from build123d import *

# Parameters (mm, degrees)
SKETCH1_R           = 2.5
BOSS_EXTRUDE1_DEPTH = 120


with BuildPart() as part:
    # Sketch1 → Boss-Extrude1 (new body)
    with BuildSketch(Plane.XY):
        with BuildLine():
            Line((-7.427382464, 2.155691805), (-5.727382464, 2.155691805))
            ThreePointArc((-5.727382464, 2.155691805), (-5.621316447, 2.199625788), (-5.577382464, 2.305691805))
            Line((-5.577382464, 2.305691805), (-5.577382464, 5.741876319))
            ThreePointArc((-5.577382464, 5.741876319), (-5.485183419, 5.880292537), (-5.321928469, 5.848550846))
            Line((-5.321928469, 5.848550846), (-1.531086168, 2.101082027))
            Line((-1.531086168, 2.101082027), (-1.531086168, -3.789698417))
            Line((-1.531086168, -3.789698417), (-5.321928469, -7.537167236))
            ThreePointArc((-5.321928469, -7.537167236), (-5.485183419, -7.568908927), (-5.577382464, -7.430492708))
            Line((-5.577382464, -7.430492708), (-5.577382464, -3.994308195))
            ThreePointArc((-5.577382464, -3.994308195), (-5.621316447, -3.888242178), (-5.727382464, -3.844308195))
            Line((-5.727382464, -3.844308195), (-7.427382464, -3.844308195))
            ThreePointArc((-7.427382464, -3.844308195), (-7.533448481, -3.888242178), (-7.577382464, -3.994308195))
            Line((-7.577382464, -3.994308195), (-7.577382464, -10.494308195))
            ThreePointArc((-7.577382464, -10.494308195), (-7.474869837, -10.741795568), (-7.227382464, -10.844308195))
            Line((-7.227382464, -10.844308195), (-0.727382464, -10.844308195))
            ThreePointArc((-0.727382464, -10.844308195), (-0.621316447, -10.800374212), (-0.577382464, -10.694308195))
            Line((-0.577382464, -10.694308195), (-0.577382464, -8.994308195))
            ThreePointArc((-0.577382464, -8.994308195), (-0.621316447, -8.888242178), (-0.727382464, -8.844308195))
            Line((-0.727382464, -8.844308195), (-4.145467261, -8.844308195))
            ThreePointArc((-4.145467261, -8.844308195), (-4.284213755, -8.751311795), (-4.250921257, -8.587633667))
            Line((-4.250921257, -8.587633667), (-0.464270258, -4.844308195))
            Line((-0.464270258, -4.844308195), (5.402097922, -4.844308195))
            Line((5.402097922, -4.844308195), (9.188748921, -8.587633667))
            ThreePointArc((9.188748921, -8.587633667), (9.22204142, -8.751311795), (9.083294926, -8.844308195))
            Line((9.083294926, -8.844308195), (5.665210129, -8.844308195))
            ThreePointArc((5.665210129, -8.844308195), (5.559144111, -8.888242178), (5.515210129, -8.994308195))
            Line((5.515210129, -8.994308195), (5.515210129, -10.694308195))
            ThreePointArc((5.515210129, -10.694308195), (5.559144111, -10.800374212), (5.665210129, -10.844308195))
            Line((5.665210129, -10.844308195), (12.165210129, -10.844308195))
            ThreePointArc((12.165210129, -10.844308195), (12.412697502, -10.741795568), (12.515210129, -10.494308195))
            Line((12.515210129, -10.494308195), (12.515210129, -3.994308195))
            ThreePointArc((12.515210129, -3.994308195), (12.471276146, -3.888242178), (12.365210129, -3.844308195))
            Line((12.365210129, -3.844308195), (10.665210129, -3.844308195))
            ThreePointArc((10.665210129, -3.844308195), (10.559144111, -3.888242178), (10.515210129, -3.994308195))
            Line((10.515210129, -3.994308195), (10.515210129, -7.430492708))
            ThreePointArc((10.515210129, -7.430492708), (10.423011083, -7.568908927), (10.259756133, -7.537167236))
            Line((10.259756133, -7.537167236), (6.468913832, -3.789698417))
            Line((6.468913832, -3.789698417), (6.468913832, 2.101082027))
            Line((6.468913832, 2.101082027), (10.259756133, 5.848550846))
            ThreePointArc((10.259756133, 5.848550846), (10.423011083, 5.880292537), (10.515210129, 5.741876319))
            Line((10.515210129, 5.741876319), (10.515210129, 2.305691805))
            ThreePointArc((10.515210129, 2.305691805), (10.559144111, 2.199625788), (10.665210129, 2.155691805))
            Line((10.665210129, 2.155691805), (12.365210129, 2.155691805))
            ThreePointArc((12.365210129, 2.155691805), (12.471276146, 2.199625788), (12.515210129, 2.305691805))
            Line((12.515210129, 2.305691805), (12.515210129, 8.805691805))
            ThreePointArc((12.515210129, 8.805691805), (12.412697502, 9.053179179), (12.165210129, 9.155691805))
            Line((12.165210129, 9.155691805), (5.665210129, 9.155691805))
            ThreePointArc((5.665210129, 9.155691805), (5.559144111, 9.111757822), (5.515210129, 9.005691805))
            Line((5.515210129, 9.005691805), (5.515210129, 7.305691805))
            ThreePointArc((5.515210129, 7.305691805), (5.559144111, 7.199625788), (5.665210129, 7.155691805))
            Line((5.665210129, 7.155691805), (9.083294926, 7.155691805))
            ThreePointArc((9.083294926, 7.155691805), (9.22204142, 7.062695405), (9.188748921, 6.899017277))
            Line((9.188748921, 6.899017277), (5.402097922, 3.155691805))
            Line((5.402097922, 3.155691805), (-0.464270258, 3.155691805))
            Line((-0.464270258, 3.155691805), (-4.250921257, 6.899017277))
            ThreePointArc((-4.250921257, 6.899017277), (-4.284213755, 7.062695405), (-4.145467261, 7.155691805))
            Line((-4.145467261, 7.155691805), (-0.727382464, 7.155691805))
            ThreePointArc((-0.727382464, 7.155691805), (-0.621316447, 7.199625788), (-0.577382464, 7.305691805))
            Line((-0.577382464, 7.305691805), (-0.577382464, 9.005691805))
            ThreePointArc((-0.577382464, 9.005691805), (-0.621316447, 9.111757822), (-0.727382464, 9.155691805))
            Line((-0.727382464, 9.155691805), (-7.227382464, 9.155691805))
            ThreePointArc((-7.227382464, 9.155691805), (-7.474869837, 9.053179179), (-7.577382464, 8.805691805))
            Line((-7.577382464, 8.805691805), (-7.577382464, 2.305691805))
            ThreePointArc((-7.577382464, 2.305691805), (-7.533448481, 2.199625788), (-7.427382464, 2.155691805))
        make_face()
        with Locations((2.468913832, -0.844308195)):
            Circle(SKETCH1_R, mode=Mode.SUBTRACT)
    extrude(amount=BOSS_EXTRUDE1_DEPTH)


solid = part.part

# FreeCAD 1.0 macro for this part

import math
import FreeCAD as App
import Part
import Sketcher
Q = App.Units.Quantity

doc = App.newDocument("Part")
params = doc.addObject("Spreadsheet::Sheet", "Params")
for row, (alias, value) in enumerate([
    ("sketch1_diameter", "5 mm"),
    ("sketch1_radius", "0.15 mm"),
    ("sketch1_radius2", "0.35 mm"),
    ("sketch1_width", "1.7 mm"),
    ("sketch1_width2", "6.5 mm"),
    ("pad1_length", "120 mm"),
], start=1):
    params.set(f"A{row}", alias)
    params.set(f"B{row}", "=" + value)
    params.setAlias(f"B{row}", alias)

body = doc.addObject("PartDesign::Body", "Body")

sketch1 = body.newObject("Sketcher::SketchObject", "Sketch")
sketch1.AttachmentSupport = (doc.getObject("XY_Plane"), [""])
sketch1.MapMode = "FlatFace"
sketch1.addGeometry([
    Part.LineSegment(App.Vector(-7.43, 2.16, 0), App.Vector(-5.73, 2.16, 0)),
    Part.ArcOfCircle(Part.Circle(App.Vector(-5.73, 2.31, 0), App.Vector(0, 0, 1), 0.15), math.radians(-90), math.radians(0)),
    Part.LineSegment(App.Vector(-5.58, 2.31, 0), App.Vector(-5.58, 5.74, 0)),
    Part.ArcOfCircle(Part.Circle(App.Vector(-5.43, 5.74, 0), App.Vector(0, 0, 1), 0.15), math.radians(45), math.radians(180)),
    Part.LineSegment(App.Vector(-5.32, 5.85, 0), App.Vector(-1.53, 2.1, 0)),
    Part.LineSegment(App.Vector(-1.53, 2.1, 0), App.Vector(-1.53, -3.79, 0)),
    Part.LineSegment(App.Vector(-1.53, -3.79, 0), App.Vector(-5.32, -7.54, 0)),
    Part.ArcOfCircle(Part.Circle(App.Vector(-5.43, -7.43, 0), App.Vector(0, 0, 1), 0.15), math.radians(180), math.radians(315)),
    Part.LineSegment(App.Vector(-5.58, -7.43, 0), App.Vector(-5.58, -3.99, 0)),
    Part.ArcOfCircle(Part.Circle(App.Vector(-5.73, -3.99, 0), App.Vector(0, 0, 1), 0.15), math.radians(0), math.radians(90)),
    Part.LineSegment(App.Vector(-5.73, -3.84, 0), App.Vector(-7.43, -3.84, 0)),
    Part.ArcOfCircle(Part.Circle(App.Vector(-7.43, -3.99, 0), App.Vector(0, 0, 1), 0.15), math.radians(90), math.radians(180)),
    Part.LineSegment(App.Vector(-7.58, -3.99, 0), App.Vector(-7.58, -10.49, 0)),
    Part.ArcOfCircle(Part.Circle(App.Vector(-7.23, -10.49, 0), App.Vector(0, 0, 1), 0.35), math.radians(-180), math.radians(-90)),
    Part.LineSegment(App.Vector(-7.23, -10.84, 0), App.Vector(-0.73, -10.84, 0)),
    Part.ArcOfCircle(Part.Circle(App.Vector(-0.73, -10.69, 0), App.Vector(0, 0, 1), 0.15), math.radians(-90), math.radians(0)),
    Part.LineSegment(App.Vector(-0.58, -10.69, 0), App.Vector(-0.58, -8.99, 0)),
    Part.ArcOfCircle(Part.Circle(App.Vector(-0.73, -8.99, 0), App.Vector(0, 0, 1), 0.15), math.radians(0), math.radians(90)),
    Part.LineSegment(App.Vector(-0.73, -8.84, 0), App.Vector(-4.15, -8.84, 0)),
    Part.ArcOfCircle(Part.Circle(App.Vector(-4.15, -8.69, 0), App.Vector(0, 0, 1), 0.15), math.radians(135), math.radians(270)),
    Part.LineSegment(App.Vector(-4.25, -8.59, 0), App.Vector(-0.46, -4.84, 0)),
    Part.LineSegment(App.Vector(-0.46, -4.84, 0), App.Vector(5.4, -4.84, 0)),
    Part.LineSegment(App.Vector(5.4, -4.84, 0), App.Vector(9.19, -8.59, 0)),
    Part.ArcOfCircle(Part.Circle(App.Vector(9.08, -8.69, 0), App.Vector(0, 0, 1), 0.15), math.radians(-90), math.radians(45)),
    Part.LineSegment(App.Vector(9.08, -8.84, 0), App.Vector(5.67, -8.84, 0)),
    Part.ArcOfCircle(Part.Circle(App.Vector(5.67, -8.99, 0), App.Vector(0, 0, 1), 0.15), math.radians(90), math.radians(180)),
    Part.LineSegment(App.Vector(5.52, -8.99, 0), App.Vector(5.52, -10.69, 0)),
    Part.ArcOfCircle(Part.Circle(App.Vector(5.67, -10.69, 0), App.Vector(0, 0, 1), 0.15), math.radians(180), math.radians(270)),
    Part.LineSegment(App.Vector(5.67, -10.84, 0), App.Vector(12.17, -10.84, 0)),
    Part.ArcOfCircle(Part.Circle(App.Vector(12.17, -10.49, 0), App.Vector(0, 0, 1), 0.35), math.radians(-90), math.radians(0)),
    Part.LineSegment(App.Vector(12.52, -10.49, 0), App.Vector(12.52, -3.99, 0)),
    Part.ArcOfCircle(Part.Circle(App.Vector(12.37, -3.99, 0), App.Vector(0, 0, 1), 0.15), math.radians(0), math.radians(90)),
    Part.LineSegment(App.Vector(12.37, -3.84, 0), App.Vector(10.67, -3.84, 0)),
    Part.ArcOfCircle(Part.Circle(App.Vector(10.67, -3.99, 0), App.Vector(0, 0, 1), 0.15), math.radians(90), math.radians(180)),
    Part.LineSegment(App.Vector(10.52, -3.99, 0), App.Vector(10.52, -7.43, 0)),
    Part.ArcOfCircle(Part.Circle(App.Vector(10.37, -7.43, 0), App.Vector(0, 0, 1), 0.15), math.radians(-135), math.radians(0)),
    Part.LineSegment(App.Vector(10.26, -7.54, 0), App.Vector(6.47, -3.79, 0)),
    Part.LineSegment(App.Vector(6.47, -3.79, 0), App.Vector(6.47, 2.1, 0)),
    Part.LineSegment(App.Vector(6.47, 2.1, 0), App.Vector(10.26, 5.85, 0)),
    Part.ArcOfCircle(Part.Circle(App.Vector(10.37, 5.74, 0), App.Vector(0, 0, 1), 0.15), math.radians(0), math.radians(135)),
    Part.LineSegment(App.Vector(10.52, 5.74, 0), App.Vector(10.52, 2.31, 0)),
    Part.ArcOfCircle(Part.Circle(App.Vector(10.67, 2.31, 0), App.Vector(0, 0, 1), 0.15), math.radians(180), math.radians(270)),
    Part.LineSegment(App.Vector(10.67, 2.16, 0), App.Vector(12.37, 2.16, 0)),
    Part.ArcOfCircle(Part.Circle(App.Vector(12.37, 2.31, 0), App.Vector(0, 0, 1), 0.15), math.radians(-90), math.radians(0)),
    Part.LineSegment(App.Vector(12.52, 2.31, 0), App.Vector(12.52, 8.81, 0)),
    Part.ArcOfCircle(Part.Circle(App.Vector(12.17, 8.81, 0), App.Vector(0, 0, 1), 0.35), math.radians(0), math.radians(90)),
    Part.LineSegment(App.Vector(12.17, 9.16, 0), App.Vector(5.67, 9.16, 0)),
    Part.ArcOfCircle(Part.Circle(App.Vector(5.67, 9.01, 0), App.Vector(0, 0, 1), 0.15), math.radians(90), math.radians(180)),
    Part.LineSegment(App.Vector(5.52, 9.01, 0), App.Vector(5.52, 7.31, 0)),
    Part.ArcOfCircle(Part.Circle(App.Vector(5.67, 7.31, 0), App.Vector(0, 0, 1), 0.15), math.radians(180), math.radians(270)),
    Part.LineSegment(App.Vector(5.67, 7.16, 0), App.Vector(9.08, 7.16, 0)),
    Part.ArcOfCircle(Part.Circle(App.Vector(9.08, 7.01, 0), App.Vector(0, 0, 1), 0.15), math.radians(-45), math.radians(90)),
    Part.LineSegment(App.Vector(9.19, 6.9, 0), App.Vector(5.4, 3.16, 0)),
    Part.LineSegment(App.Vector(5.4, 3.16, 0), App.Vector(-0.46, 3.16, 0)),
    Part.LineSegment(App.Vector(-0.46, 3.16, 0), App.Vector(-4.25, 6.9, 0)),
    Part.ArcOfCircle(Part.Circle(App.Vector(-4.15, 7.01, 0), App.Vector(0, 0, 1), 0.15), math.radians(90), math.radians(225)),
    Part.LineSegment(App.Vector(-4.15, 7.16, 0), App.Vector(-0.73, 7.16, 0)),
    Part.ArcOfCircle(Part.Circle(App.Vector(-0.73, 7.31, 0), App.Vector(0, 0, 1), 0.15), math.radians(-90), math.radians(0)),
    Part.LineSegment(App.Vector(-0.58, 7.31, 0), App.Vector(-0.58, 9.01, 0)),
    Part.ArcOfCircle(Part.Circle(App.Vector(-0.73, 9.01, 0), App.Vector(0, 0, 1), 0.15), math.radians(0), math.radians(90)),
    Part.LineSegment(App.Vector(-0.73, 9.16, 0), App.Vector(-7.23, 9.16, 0)),
    Part.ArcOfCircle(Part.Circle(App.Vector(-7.23, 8.81, 0), App.Vector(0, 0, 1), 0.35), math.radians(90), math.radians(180)),
    Part.LineSegment(App.Vector(-7.58, 8.81, 0), App.Vector(-7.58, 2.31, 0)),
    Part.ArcOfCircle(Part.Circle(App.Vector(-7.43, 2.31, 0), App.Vector(0, 0, 1), 0.15), math.radians(-180), math.radians(-90)),
    Part.Circle(App.Vector(2.47, -0.84, 0), App.Vector(0, 0, 1), 2.5),
], False)
sketch1.addConstraint([
    Sketcher.Constraint("Tangent", 0, 2, 1, 1),
    Sketcher.Constraint("Tangent", 1, 2, 2, 1),
    Sketcher.Constraint("Tangent", 2, 2, 3, 2),
    Sketcher.Constraint("Tangent", 3, 1, 4, 1),
    Sketcher.Constraint("Coincident", 4, 2, 5, 1),
    Sketcher.Constraint("Coincident", 5, 2, 6, 1),
    Sketcher.Constraint("Tangent", 6, 2, 7, 2),
    Sketcher.Constraint("Tangent", 7, 1, 8, 1),
    Sketcher.Constraint("Tangent", 8, 2, 9, 1),
    Sketcher.Constraint("Tangent", 9, 2, 10, 1),
    Sketcher.Constraint("Tangent", 10, 2, 11, 1),
    Sketcher.Constraint("Tangent", 11, 2, 12, 1),
    Sketcher.Constraint("Tangent", 12, 2, 13, 1),
    Sketcher.Constraint("Tangent", 13, 2, 14, 1),
    Sketcher.Constraint("Tangent", 14, 2, 15, 1),
    Sketcher.Constraint("Tangent", 15, 2, 16, 1),
    Sketcher.Constraint("Tangent", 16, 2, 17, 1),
    Sketcher.Constraint("Tangent", 17, 2, 18, 1),
    Sketcher.Constraint("Tangent", 18, 2, 19, 2),
    Sketcher.Constraint("Tangent", 19, 1, 20, 1),
    Sketcher.Constraint("Coincident", 20, 2, 21, 1),
    Sketcher.Constraint("Coincident", 21, 2, 22, 1),
    Sketcher.Constraint("Tangent", 22, 2, 23, 2),
    Sketcher.Constraint("Tangent", 23, 1, 24, 1),
    Sketcher.Constraint("Tangent", 24, 2, 25, 1),
    Sketcher.Constraint("Tangent", 25, 2, 26, 1),
    Sketcher.Constraint("Tangent", 26, 2, 27, 1),
    Sketcher.Constraint("Tangent", 27, 2, 28, 1),
    Sketcher.Constraint("Tangent", 28, 2, 29, 1),
    Sketcher.Constraint("Tangent", 29, 2, 30, 1),
    Sketcher.Constraint("Tangent", 30, 2, 31, 1),
    Sketcher.Constraint("Tangent", 31, 2, 32, 1),
    Sketcher.Constraint("Tangent", 32, 2, 33, 1),
    Sketcher.Constraint("Tangent", 33, 2, 34, 1),
    Sketcher.Constraint("Tangent", 34, 2, 35, 2),
    Sketcher.Constraint("Tangent", 35, 1, 36, 1),
    Sketcher.Constraint("Coincident", 36, 2, 37, 1),
    Sketcher.Constraint("Coincident", 37, 2, 38, 1),
    Sketcher.Constraint("Tangent", 38, 2, 39, 2),
    Sketcher.Constraint("Tangent", 39, 1, 40, 1),
    Sketcher.Constraint("Tangent", 40, 2, 41, 1),
    Sketcher.Constraint("Tangent", 41, 2, 42, 1),
    Sketcher.Constraint("Tangent", 42, 2, 43, 1),
    Sketcher.Constraint("Tangent", 43, 2, 44, 1),
    Sketcher.Constraint("Tangent", 44, 2, 45, 1),
    Sketcher.Constraint("Tangent", 45, 2, 46, 1),
    Sketcher.Constraint("Tangent", 46, 2, 47, 1),
    Sketcher.Constraint("Tangent", 47, 2, 48, 1),
    Sketcher.Constraint("Tangent", 48, 2, 49, 1),
    Sketcher.Constraint("Tangent", 49, 2, 50, 1),
    Sketcher.Constraint("Tangent", 50, 2, 51, 2),
    Sketcher.Constraint("Tangent", 51, 1, 52, 1),
    Sketcher.Constraint("Coincident", 52, 2, 53, 1),
    Sketcher.Constraint("Coincident", 53, 2, 54, 1),
    Sketcher.Constraint("Tangent", 54, 2, 55, 2),
    Sketcher.Constraint("Tangent", 55, 1, 56, 1),
    Sketcher.Constraint("Tangent", 56, 2, 57, 1),
    Sketcher.Constraint("Tangent", 57, 2, 58, 1),
    Sketcher.Constraint("Tangent", 58, 2, 59, 1),
    Sketcher.Constraint("Tangent", 59, 2, 60, 1),
    Sketcher.Constraint("Tangent", 60, 2, 61, 1),
    Sketcher.Constraint("Tangent", 61, 2, 62, 1),
    Sketcher.Constraint("Tangent", 62, 2, 63, 1),
    Sketcher.Constraint("Tangent", 63, 2, 0, 1),
    Sketcher.Constraint("Horizontal", 0),
    Sketcher.Constraint("Vertical", 2),
    Sketcher.Constraint("Vertical", 5),
    Sketcher.Constraint("Vertical", 8),
    Sketcher.Constraint("Horizontal", 10),
    Sketcher.Constraint("Vertical", 12),
    Sketcher.Constraint("Horizontal", 14),
    Sketcher.Constraint("Vertical", 16),
    Sketcher.Constraint("Horizontal", 18),
    Sketcher.Constraint("Horizontal", 21),
    Sketcher.Constraint("Horizontal", 24),
    Sketcher.Constraint("Vertical", 26),
    Sketcher.Constraint("Horizontal", 28),
    Sketcher.Constraint("Vertical", 30),
    Sketcher.Constraint("Horizontal", 32),
    Sketcher.Constraint("Vertical", 34),
    Sketcher.Constraint("Vertical", 37),
    Sketcher.Constraint("Vertical", 40),
    Sketcher.Constraint("Horizontal", 42),
    Sketcher.Constraint("Vertical", 44),
    Sketcher.Constraint("Horizontal", 46),
    Sketcher.Constraint("Vertical", 48),
    Sketcher.Constraint("Horizontal", 50),
    Sketcher.Constraint("Horizontal", 53),
    Sketcher.Constraint("Horizontal", 56),
    Sketcher.Constraint("Vertical", 58),
    Sketcher.Constraint("Horizontal", 60),
    Sketcher.Constraint("Vertical", 62),
    Sketcher.Constraint("Equal", 1, 3),
    Sketcher.Constraint("Equal", 3, 7),
    Sketcher.Constraint("Equal", 7, 9),
    Sketcher.Constraint("Equal", 9, 11),
    Sketcher.Constraint("Equal", 11, 15),
    Sketcher.Constraint("Equal", 15, 17),
    Sketcher.Constraint("Equal", 17, 19),
    Sketcher.Constraint("Equal", 19, 23),
    Sketcher.Constraint("Equal", 23, 25),
    Sketcher.Constraint("Equal", 25, 27),
    Sketcher.Constraint("Equal", 13, 29),
    Sketcher.Constraint("Equal", 27, 31),
    Sketcher.Constraint("Equal", 31, 33),
    Sketcher.Constraint("Equal", 33, 35),
    Sketcher.Constraint("Equal", 35, 39),
    Sketcher.Constraint("Equal", 39, 41),
    Sketcher.Constraint("Equal", 41, 43),
    Sketcher.Constraint("Equal", 29, 45),
    Sketcher.Constraint("Equal", 43, 47),
    Sketcher.Constraint("Equal", 47, 49),
    Sketcher.Constraint("Equal", 49, 51),
    Sketcher.Constraint("Equal", 51, 55),
    Sketcher.Constraint("Equal", 55, 57),
    Sketcher.Constraint("Equal", 57, 59),
    Sketcher.Constraint("Equal", 45, 61),
    Sketcher.Constraint("Equal", 59, 63),
    Sketcher.Constraint("Parallel", 6, 20),
    Sketcher.Constraint("Parallel", 4, 22),
    Sketcher.Constraint("Parallel", 22, 36),
    Sketcher.Constraint("Parallel", 20, 38),
    Sketcher.Constraint("Parallel", 38, 52),
    Sketcher.Constraint("Parallel", 36, 54),
    Sketcher.Constraint("Horizontal", 19, 3, 23, 3),
    Sketcher.Constraint("Horizontal", 15, 3, 27, 3),
    Sketcher.Constraint("Horizontal", 11, 3, 31, 3),
    Sketcher.Constraint("Horizontal", 7, 3, 35, 3),
    Sketcher.Constraint("Horizontal", 3, 3, 39, 3),
    Sketcher.Constraint("Horizontal", 1, 3, 41, 3),
    Sketcher.Constraint("Horizontal", 51, 3, 55, 3),
    Sketcher.Constraint("Horizontal", 47, 3, 59, 3),
    Sketcher.Constraint("Horizontal", 19, 1, 22, 2),
    Sketcher.Constraint("Horizontal", 5, 2, 36, 2),
    Sketcher.Constraint("Horizontal", 4, 2, 37, 2),
    Sketcher.Constraint("Vertical", 3, 3, 7, 3),
    Sketcher.Constraint("Vertical", 31, 3, 43, 3),
    Sketcher.Constraint("Vertical", 27, 3, 47, 3),
    Sketcher.Constraint("Vertical", 23, 3, 51, 3),
    Sketcher.Constraint("Vertical", 19, 3, 55, 3),
    Sketcher.Constraint("Vertical", 17, 3, 57, 3),
    Sketcher.Constraint("Vertical", 13, 3, 61, 3),
    Sketcher.Constraint("Vertical", 21, 2, 52, 2),
    Sketcher.Constraint("Equal", 18, 24),
    Sketcher.Constraint("Equal", 14, 28),
    Sketcher.Constraint("Equal", 10, 32),
    Sketcher.Constraint("Equal", 2, 8),
    Sketcher.Constraint("Equal", 60, 12),
    Sketcher.Constraint("Equal", 42, 16),
    Sketcher.Constraint("Equal", 30, 44),
    Sketcher.Constraint("Equal", 26, 48),
    Sketcher.Constraint("Diameter", 64, Q("5 mm")),
    Sketcher.Constraint("Radius", 1, Q("0.15 mm")),
    Sketcher.Constraint("Radius", 13, Q("0.35 mm")),
    Sketcher.Constraint("DistanceX", 0, 1, 0, 2, Q("1.7 mm")),
    Sketcher.Constraint("DistanceX", 14, 1, 14, 2, Q("6.5 mm")),
    Sketcher.Constraint("DistanceX", 21, 1, 21, 2, Q("5.866368 mm")),
    Sketcher.Constraint("DistanceY", 5, 2, 5, 1, Q("5.89078 mm")),
    Sketcher.Constraint("DistanceY", 5, 2, -1, 1, Q("3.789698 mm")),
    Sketcher.Constraint("Distance", 4, Q("5.330479 mm")),
    Sketcher.Constraint("DistanceX", 18, 2, 18, 1, Q("3.418085 mm")),
    Sketcher.Constraint("DistanceY", 2, 1, 2, 2, Q("3.436185 mm")),
    Sketcher.Constraint("DistanceY", -1, 1, 1, 3, Q("2.305692 mm")),
    Sketcher.Constraint("DistanceX", -1, 1, 25, 3, Q("5.66521 mm")),
    Sketcher.Constraint("DistanceY", 64, 3, -1, 1, Q("0.844308 mm")),
    Sketcher.Constraint("DistanceX", 3, 1, -1, 1, Q("5.321928 mm")),
    Sketcher.Constraint("DistanceX", -1, 1, 64, 3, Q("2.468914 mm")),
])
sketch1.setExpression("Constraints[151]", "Params.sketch1_diameter")
sketch1.setExpression("Constraints[152]", "Params.sketch1_radius")
sketch1.setExpression("Constraints[153]", "Params.sketch1_radius2")
sketch1.setExpression("Constraints[154]", "Params.sketch1_width")
sketch1.setExpression("Constraints[155]", "Params.sketch1_width2")
pad1 = body.newObject("PartDesign::Pad", "Pad")
pad1.Profile = sketch1
pad1.setExpression("Length", "Params.pad1_length")

doc.recompute()
